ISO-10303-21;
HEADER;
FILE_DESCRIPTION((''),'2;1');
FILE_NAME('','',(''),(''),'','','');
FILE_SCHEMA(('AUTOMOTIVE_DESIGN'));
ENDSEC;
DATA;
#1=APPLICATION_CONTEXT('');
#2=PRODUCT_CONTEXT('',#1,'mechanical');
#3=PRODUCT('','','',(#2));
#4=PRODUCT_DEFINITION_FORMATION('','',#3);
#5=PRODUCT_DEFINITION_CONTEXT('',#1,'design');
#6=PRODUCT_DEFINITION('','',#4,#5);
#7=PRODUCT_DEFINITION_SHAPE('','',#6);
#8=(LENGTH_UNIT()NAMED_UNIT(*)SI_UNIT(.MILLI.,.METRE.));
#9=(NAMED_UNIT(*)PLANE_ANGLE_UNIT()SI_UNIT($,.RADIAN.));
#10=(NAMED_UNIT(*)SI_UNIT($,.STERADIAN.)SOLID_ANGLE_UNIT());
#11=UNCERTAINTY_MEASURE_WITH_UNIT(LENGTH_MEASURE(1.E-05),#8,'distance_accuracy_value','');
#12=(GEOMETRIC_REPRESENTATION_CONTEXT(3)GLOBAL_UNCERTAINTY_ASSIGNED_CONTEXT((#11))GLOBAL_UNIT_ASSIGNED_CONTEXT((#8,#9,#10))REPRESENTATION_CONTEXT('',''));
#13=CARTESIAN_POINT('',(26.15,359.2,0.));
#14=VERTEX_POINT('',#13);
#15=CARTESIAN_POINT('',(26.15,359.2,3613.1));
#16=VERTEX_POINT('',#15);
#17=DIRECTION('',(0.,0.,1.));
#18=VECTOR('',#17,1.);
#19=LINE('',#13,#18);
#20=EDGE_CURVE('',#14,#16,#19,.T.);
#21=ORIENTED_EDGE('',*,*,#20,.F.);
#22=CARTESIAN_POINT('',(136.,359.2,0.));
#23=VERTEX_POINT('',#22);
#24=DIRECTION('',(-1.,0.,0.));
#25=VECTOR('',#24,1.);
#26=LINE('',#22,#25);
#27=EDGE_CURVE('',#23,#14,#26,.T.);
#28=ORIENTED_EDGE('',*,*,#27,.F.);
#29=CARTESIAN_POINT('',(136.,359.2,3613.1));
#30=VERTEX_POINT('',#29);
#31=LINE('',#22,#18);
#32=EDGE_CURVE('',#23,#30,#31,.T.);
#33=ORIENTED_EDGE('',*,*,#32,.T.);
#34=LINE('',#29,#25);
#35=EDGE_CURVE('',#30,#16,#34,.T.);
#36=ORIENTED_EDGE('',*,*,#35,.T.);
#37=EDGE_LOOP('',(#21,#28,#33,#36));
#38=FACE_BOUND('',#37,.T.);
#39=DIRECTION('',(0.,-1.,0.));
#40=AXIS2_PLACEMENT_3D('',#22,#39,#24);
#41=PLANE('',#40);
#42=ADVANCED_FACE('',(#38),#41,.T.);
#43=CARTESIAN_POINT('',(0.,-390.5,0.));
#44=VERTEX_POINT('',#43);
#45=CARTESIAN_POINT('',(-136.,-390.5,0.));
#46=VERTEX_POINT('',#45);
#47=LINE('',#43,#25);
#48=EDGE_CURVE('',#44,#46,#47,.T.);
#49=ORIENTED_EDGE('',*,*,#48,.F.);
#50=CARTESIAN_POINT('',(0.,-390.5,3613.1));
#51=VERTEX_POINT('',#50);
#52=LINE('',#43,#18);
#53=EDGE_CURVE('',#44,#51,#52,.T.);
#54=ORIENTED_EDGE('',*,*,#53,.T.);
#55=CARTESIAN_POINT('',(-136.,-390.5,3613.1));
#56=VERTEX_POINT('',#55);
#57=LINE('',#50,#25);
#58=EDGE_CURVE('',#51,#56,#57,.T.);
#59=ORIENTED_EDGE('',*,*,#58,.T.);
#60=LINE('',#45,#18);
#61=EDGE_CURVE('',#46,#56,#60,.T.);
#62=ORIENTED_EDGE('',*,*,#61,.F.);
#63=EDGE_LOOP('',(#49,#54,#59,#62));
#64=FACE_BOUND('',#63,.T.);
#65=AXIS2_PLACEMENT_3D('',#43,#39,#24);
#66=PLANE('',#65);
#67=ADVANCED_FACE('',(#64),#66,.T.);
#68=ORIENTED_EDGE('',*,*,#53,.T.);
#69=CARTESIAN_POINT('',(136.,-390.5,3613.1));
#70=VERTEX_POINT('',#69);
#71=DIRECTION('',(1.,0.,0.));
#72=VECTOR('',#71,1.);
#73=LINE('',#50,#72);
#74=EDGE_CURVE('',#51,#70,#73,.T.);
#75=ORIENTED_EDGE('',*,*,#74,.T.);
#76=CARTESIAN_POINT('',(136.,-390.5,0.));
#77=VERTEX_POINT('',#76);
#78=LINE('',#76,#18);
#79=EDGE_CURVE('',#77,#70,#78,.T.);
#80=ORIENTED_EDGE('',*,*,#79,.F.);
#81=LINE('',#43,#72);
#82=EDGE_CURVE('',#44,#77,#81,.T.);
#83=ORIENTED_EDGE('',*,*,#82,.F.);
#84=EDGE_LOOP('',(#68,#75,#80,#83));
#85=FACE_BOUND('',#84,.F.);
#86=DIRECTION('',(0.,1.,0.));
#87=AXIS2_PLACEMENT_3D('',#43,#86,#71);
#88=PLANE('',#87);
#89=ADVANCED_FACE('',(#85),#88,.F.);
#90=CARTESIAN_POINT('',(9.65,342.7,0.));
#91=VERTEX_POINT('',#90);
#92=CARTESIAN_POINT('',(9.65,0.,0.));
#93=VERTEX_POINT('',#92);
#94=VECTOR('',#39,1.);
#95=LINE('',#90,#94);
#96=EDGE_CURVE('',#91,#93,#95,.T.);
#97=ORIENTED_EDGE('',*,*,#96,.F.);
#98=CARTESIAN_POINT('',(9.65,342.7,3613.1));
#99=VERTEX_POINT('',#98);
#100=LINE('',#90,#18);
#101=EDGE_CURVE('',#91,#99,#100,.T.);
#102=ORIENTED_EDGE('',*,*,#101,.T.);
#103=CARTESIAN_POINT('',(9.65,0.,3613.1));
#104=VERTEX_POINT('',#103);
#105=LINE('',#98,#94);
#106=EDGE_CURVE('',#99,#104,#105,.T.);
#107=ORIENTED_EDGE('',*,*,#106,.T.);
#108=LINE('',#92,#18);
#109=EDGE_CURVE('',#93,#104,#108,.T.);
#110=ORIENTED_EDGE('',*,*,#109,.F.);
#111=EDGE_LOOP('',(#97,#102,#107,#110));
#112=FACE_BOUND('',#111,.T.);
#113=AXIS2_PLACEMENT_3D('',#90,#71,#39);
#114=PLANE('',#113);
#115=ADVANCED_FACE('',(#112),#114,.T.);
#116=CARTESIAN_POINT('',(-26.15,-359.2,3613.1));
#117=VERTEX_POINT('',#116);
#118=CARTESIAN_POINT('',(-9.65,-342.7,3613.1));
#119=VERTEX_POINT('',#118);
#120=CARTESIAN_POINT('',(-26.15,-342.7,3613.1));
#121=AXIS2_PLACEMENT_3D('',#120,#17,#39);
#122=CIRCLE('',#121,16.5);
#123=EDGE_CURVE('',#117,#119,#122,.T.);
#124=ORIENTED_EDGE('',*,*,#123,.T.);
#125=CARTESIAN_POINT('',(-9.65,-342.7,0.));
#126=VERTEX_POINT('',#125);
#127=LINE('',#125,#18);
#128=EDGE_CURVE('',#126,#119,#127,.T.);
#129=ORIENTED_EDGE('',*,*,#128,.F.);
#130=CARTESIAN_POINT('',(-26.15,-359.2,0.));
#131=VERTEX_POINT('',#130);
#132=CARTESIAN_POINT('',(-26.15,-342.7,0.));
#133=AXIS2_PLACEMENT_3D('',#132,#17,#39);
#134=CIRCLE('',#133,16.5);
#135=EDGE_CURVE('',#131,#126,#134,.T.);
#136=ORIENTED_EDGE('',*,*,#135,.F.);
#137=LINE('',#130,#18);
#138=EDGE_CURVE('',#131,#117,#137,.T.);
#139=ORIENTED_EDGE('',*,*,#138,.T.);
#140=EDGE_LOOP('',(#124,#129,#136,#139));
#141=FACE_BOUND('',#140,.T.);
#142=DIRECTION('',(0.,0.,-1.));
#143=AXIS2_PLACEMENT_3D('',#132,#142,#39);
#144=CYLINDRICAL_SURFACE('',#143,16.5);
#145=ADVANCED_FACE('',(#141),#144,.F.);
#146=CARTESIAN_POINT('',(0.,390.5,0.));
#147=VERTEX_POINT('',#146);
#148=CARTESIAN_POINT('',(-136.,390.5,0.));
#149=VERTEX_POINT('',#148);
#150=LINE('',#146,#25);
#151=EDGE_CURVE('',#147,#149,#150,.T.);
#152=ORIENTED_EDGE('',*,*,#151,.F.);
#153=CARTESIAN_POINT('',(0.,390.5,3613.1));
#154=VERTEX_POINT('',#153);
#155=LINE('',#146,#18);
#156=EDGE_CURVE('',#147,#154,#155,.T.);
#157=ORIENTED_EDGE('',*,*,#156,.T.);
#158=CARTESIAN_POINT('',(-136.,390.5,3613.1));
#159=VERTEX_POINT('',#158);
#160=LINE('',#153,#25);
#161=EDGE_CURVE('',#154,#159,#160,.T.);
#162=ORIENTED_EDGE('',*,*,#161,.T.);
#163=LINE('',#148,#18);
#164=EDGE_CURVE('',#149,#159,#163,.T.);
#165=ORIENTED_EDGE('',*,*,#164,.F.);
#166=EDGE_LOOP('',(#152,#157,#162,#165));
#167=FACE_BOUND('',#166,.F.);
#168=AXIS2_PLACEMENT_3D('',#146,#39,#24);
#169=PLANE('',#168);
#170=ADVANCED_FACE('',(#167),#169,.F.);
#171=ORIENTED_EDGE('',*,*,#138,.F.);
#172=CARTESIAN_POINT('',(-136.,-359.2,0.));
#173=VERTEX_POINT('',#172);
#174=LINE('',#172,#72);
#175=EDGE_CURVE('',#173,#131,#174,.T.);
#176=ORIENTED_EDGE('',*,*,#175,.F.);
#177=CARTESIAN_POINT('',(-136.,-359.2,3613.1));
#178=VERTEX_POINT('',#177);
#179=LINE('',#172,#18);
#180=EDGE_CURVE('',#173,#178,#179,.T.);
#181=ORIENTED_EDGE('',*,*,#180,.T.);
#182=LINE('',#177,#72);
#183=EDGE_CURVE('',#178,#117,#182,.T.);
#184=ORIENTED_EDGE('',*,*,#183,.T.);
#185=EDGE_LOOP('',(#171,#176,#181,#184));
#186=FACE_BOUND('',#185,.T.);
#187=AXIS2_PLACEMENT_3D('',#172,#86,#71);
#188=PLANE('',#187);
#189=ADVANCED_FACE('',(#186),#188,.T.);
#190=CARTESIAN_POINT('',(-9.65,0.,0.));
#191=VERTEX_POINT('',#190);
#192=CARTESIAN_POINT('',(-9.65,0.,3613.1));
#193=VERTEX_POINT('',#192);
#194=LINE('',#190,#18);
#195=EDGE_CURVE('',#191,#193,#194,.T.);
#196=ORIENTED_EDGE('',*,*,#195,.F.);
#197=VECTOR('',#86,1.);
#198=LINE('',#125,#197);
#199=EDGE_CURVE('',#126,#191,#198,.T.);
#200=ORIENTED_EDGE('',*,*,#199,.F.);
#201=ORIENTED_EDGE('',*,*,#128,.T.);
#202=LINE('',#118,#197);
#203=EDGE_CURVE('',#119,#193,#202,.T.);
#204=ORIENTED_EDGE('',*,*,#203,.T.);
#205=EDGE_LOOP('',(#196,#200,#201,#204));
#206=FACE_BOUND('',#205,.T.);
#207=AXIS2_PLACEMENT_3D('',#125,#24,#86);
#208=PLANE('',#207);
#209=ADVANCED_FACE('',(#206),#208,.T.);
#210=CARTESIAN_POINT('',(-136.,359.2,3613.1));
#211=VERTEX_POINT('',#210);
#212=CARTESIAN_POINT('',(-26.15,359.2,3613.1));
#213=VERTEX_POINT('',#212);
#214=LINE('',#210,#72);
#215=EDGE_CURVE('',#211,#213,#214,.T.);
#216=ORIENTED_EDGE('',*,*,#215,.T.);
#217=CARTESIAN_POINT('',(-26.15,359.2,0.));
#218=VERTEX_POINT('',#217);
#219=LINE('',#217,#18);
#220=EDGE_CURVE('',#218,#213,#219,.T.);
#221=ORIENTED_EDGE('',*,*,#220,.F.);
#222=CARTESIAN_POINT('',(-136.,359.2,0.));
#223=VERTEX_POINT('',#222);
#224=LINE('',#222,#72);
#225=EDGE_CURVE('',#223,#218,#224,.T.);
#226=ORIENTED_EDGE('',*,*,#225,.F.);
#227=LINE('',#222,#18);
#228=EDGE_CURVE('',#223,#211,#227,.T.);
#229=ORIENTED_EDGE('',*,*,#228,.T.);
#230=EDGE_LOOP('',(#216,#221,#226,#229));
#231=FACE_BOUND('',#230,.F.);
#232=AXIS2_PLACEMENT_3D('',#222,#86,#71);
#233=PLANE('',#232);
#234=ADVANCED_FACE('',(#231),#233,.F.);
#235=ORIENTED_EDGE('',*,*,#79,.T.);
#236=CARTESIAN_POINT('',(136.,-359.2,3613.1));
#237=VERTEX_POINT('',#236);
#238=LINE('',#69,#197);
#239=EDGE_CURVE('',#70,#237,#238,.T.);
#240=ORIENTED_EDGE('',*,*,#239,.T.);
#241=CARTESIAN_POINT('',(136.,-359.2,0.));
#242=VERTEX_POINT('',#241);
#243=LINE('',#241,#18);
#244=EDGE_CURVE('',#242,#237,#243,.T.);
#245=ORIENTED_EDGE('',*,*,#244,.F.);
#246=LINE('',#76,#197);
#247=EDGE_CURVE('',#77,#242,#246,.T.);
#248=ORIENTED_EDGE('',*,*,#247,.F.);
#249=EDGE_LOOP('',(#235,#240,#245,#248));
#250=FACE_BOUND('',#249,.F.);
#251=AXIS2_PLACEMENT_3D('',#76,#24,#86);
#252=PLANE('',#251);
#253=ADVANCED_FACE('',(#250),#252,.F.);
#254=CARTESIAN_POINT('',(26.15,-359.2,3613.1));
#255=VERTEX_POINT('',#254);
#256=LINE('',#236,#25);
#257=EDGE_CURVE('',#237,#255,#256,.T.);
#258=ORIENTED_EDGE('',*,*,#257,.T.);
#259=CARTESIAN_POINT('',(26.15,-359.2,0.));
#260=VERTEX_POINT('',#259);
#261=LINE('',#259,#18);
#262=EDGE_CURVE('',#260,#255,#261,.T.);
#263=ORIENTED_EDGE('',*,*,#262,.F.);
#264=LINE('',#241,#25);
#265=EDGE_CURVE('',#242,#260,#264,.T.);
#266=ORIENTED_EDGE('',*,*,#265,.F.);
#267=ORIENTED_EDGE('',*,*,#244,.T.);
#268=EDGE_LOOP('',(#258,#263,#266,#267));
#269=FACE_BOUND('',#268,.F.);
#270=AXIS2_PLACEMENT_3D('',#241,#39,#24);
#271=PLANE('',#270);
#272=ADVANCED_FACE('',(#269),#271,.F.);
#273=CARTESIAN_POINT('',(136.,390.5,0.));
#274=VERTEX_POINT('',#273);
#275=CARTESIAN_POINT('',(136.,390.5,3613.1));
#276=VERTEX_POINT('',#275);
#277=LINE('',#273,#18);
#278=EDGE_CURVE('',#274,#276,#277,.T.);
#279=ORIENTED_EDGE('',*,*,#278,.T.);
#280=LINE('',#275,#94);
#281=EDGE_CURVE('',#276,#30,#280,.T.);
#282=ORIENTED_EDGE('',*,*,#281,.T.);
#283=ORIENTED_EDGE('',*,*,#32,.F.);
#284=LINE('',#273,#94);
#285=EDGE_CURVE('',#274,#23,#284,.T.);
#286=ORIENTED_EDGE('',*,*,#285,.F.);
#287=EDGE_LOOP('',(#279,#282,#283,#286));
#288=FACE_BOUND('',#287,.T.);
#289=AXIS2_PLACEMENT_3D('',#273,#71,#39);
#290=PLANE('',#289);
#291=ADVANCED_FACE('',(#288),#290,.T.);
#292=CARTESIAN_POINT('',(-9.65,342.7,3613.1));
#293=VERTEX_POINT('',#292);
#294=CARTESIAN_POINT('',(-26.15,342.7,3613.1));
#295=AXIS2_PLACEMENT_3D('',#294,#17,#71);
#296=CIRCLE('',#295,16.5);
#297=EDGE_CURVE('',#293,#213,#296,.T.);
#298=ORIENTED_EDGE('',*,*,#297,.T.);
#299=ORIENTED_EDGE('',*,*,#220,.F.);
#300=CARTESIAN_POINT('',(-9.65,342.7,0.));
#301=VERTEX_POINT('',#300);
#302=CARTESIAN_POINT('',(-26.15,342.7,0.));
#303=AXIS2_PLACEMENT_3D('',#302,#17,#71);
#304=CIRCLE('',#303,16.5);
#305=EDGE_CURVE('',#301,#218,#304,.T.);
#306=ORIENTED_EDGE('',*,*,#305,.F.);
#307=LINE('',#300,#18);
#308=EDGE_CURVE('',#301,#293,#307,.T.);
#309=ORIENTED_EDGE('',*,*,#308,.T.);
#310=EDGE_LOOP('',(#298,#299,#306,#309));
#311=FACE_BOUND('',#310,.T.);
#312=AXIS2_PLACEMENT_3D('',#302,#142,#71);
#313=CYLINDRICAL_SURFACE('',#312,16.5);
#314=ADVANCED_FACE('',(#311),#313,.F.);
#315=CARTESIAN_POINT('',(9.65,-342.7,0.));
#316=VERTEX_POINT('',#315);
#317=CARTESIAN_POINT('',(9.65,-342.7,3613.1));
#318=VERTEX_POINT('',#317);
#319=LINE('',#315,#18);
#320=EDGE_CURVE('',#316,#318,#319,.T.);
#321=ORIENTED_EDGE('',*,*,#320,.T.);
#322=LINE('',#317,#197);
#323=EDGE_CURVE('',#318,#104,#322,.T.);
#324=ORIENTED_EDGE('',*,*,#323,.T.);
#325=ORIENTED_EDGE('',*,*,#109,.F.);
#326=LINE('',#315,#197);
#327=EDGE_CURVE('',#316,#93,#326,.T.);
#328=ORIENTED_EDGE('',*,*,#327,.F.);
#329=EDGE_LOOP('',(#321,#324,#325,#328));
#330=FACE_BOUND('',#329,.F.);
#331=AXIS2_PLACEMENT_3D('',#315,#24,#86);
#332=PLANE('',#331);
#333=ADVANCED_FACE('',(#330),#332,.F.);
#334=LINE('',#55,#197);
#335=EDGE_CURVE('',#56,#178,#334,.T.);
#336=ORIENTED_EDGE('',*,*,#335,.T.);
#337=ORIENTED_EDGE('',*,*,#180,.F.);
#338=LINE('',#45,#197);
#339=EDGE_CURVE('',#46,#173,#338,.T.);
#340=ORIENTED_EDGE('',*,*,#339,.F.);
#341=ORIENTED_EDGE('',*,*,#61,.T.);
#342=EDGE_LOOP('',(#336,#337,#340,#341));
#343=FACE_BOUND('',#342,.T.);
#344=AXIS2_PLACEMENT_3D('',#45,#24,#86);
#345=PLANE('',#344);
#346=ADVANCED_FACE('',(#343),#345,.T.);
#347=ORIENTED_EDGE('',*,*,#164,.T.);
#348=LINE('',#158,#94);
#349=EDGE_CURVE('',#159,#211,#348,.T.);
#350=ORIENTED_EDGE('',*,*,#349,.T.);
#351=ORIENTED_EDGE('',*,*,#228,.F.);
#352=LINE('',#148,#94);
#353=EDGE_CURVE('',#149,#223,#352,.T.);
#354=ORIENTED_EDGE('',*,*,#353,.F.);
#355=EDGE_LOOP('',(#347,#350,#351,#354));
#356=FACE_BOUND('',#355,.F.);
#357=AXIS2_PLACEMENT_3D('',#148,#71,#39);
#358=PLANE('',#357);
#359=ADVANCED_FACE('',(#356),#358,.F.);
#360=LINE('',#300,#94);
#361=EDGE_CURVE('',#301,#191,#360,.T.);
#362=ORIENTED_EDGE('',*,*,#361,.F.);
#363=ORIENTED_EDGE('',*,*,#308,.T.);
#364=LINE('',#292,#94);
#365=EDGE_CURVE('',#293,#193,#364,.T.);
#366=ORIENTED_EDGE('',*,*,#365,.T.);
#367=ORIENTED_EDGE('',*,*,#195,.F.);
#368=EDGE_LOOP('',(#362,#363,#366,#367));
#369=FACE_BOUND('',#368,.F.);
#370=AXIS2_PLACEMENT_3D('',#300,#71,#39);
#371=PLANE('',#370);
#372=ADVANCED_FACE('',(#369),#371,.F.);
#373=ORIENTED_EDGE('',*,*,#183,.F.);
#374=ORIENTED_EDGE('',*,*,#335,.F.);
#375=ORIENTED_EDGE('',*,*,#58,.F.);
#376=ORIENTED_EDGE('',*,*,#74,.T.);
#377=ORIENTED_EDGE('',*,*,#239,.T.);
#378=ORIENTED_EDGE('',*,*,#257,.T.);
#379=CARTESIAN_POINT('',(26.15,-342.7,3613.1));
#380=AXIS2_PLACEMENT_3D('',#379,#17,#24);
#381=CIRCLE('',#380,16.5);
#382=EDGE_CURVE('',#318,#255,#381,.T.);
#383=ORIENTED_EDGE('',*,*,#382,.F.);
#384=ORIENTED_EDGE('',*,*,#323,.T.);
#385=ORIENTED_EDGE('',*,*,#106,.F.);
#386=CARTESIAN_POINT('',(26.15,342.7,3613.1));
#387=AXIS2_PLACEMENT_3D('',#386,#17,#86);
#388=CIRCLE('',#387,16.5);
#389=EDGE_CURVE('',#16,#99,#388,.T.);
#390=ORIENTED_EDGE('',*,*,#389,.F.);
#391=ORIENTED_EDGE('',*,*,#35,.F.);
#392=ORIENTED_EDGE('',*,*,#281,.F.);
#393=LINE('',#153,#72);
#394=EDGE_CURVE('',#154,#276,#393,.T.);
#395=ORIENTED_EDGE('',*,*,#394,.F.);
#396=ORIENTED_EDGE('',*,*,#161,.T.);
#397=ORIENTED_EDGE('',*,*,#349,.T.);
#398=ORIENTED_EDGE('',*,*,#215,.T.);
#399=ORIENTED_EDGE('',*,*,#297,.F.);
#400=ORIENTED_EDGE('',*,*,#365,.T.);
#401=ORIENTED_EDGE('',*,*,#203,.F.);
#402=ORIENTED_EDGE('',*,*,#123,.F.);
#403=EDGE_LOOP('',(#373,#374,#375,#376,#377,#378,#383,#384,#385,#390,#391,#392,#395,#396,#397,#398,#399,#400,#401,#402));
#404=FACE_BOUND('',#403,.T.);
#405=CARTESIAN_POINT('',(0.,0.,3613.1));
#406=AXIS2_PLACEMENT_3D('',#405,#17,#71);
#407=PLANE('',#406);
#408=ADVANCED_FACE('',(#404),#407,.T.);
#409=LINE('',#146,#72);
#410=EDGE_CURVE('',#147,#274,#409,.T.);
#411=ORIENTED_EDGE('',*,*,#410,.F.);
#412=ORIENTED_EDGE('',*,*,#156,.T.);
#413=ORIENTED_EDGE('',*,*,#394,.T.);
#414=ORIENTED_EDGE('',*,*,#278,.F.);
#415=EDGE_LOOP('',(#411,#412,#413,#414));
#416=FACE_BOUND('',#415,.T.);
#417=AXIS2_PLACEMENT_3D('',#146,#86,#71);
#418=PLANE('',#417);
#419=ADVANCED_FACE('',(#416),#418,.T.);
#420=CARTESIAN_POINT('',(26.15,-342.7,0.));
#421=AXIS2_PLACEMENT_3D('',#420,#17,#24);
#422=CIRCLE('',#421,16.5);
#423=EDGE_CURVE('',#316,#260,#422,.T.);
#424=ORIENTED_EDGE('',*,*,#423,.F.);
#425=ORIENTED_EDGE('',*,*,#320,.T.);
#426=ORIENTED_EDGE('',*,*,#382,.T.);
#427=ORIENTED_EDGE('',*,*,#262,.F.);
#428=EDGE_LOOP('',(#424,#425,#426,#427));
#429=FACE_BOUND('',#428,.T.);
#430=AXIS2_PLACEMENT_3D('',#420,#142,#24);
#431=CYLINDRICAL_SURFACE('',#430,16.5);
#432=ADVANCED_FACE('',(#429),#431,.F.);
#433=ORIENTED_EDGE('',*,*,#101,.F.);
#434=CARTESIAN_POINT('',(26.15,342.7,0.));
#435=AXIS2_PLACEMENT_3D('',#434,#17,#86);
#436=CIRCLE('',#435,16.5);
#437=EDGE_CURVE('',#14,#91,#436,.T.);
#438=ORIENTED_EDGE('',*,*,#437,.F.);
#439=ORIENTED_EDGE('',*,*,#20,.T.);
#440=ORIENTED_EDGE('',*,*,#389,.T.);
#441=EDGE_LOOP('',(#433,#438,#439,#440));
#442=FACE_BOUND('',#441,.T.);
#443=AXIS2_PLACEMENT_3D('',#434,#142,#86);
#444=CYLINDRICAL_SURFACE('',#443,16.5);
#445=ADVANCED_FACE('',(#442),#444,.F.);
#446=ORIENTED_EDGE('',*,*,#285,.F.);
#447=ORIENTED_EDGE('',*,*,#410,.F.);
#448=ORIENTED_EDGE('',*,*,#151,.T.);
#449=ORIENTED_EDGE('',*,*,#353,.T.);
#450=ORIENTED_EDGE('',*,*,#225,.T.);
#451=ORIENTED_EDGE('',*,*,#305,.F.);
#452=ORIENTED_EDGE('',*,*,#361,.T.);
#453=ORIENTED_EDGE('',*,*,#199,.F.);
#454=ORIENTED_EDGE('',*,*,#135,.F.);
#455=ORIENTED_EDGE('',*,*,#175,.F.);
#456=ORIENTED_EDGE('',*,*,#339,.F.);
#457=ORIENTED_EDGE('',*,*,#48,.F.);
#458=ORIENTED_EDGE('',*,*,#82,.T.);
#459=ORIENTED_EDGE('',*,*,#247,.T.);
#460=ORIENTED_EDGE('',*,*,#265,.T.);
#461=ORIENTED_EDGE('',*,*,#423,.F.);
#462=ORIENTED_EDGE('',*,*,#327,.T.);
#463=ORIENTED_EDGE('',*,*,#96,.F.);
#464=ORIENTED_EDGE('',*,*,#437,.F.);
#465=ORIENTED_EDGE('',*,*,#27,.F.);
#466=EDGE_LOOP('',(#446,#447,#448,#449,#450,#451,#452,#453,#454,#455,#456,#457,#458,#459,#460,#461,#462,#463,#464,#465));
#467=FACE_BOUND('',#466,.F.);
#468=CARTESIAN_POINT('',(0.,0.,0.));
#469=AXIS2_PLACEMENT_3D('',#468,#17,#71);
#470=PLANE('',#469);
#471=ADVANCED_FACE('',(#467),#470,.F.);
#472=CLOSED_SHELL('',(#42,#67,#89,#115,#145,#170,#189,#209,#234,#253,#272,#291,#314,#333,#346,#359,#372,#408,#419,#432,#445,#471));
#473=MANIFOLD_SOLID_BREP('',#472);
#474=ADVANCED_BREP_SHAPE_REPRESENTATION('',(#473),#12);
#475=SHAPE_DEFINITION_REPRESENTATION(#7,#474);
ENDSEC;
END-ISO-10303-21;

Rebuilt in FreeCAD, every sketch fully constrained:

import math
import FreeCAD as App
import Part
import Sketcher

V = App.Vector

doc = App.newDocument("Part")
body = doc.addObject("PartDesign::Body", "Body")

# Sketch on XY plane
sketch1 = body.newObject("Sketcher::SketchObject", "Sketch")
sketch1.AttachmentSupport = (doc.getObject("XY_Plane"), [""])
sketch1.MapMode = "FlatFace"
sketch1.addGeometry([
    Part.LineSegment(V(-136, -359, 0), V(-136, -390, 0)),  # 0
    Part.LineSegment(V(-136, -390, 0), V(136, -390, 0)),  # 1
    Part.LineSegment(V(136, -390, 0), V(136, -359, 0)),  # 2
    Part.LineSegment(V(136, -359, 0), V(26, -359, 0)),  # 3
    Part.ArcOfCircle(Part.Circle(V(26, -343, 0), V(0, 0, 1), 16), math.radians(180), math.radians(270)),  # 4
    Part.LineSegment(V(10, -343, 0), V(10, 343, 0)),  # 5
    Part.ArcOfCircle(Part.Circle(V(26, 343, 0), V(0, 0, 1), 16), math.radians(90), math.radians(180)),  # 6
    Part.LineSegment(V(26, 359, 0), V(136, 359, 0)),  # 7
    Part.LineSegment(V(136, 359, 0), V(136, 390, 0)),  # 8
    Part.LineSegment(V(136, 390, 0), V(-136, 390, 0)),  # 9
    Part.LineSegment(V(-136, 390, 0), V(-136, 359, 0)),  # 10
    Part.LineSegment(V(-136, 359, 0), V(-26, 359, 0)),  # 11
    Part.ArcOfCircle(Part.Circle(V(-26, 343, 0), V(0, 0, 1), 16), math.radians(0), math.radians(90)),  # 12
    Part.LineSegment(V(-10, 343, 0), V(-10, -343, 0)),  # 13
    Part.ArcOfCircle(Part.Circle(V(-26, -343, 0), V(0, 0, 1), 16), math.radians(-90), math.radians(0)),  # 14
    Part.LineSegment(V(-26, -359, 0), V(-136, -359, 0)),  # 15
], False)
sketch1.addConstraint([
    Sketcher.Constraint("Coincident", 0, 2, 1, 1),
    Sketcher.Constraint("Coincident", 1, 2, 2, 1),
    Sketcher.Constraint("Coincident", 2, 2, 3, 1),
    Sketcher.Constraint("Tangent", 3, 2, 4, 2),
    Sketcher.Constraint("Tangent", 4, 1, 5, 1),
    Sketcher.Constraint("Tangent", 5, 2, 6, 2),
    Sketcher.Constraint("Tangent", 6, 1, 7, 1),
    Sketcher.Constraint("Coincident", 7, 2, 8, 1),
    Sketcher.Constraint("Coincident", 8, 2, 9, 1),
    Sketcher.Constraint("Coincident", 9, 2, 10, 1),
    Sketcher.Constraint("Coincident", 10, 2, 11, 1),
    Sketcher.Constraint("Tangent", 11, 2, 12, 2),
    Sketcher.Constraint("Tangent", 12, 1, 13, 1),
    Sketcher.Constraint("Tangent", 13, 2, 14, 2),
    Sketcher.Constraint("Tangent", 14, 1, 15, 1),
    Sketcher.Constraint("Coincident", 15, 2, 0, 1),
    Sketcher.Constraint("Vertical", 0),
    Sketcher.Constraint("Horizontal", 1),
    Sketcher.Constraint("Vertical", 2),
    Sketcher.Constraint("Horizontal", 3),
    Sketcher.Constraint("Vertical", 5),
    Sketcher.Constraint("Horizontal", 7),
    Sketcher.Constraint("Vertical", 8),
    Sketcher.Constraint("Horizontal", 9),
    Sketcher.Constraint("Vertical", 10),
    Sketcher.Constraint("Horizontal", 11),
    Sketcher.Constraint("Vertical", 13),
    Sketcher.Constraint("Horizontal", 15),
    Sketcher.Constraint("Equal", 4, 6),
    Sketcher.Constraint("Equal", 6, 12),
    Sketcher.Constraint("Equal", 12, 14),
    Sketcher.Constraint("Symmetric", 4, 3, 12, 3, -1, 1),
    Sketcher.Constraint("Symmetric", 0, 2, 8, 2, -1, 1),
    Sketcher.Constraint("Symmetric", 7, 2, 10, 2, -2),
    Sketcher.Constraint("Symmetric", 2, 2, 15, 2, -2),
    Sketcher.Constraint("Radius", 4, 16.5),
    Sketcher.Constraint("DistanceY", 0, 2, 0, 1, 31.3),
    Sketcher.Constraint("DistanceX", 0, 2, -1, 1, 136.0),
    Sketcher.Constraint("DistanceY", 0, 2, -1, 1, 390.5),
    Sketcher.Constraint("DistanceX", -1, 1, 4, 1, 9.65),
])
pad1 = body.newObject("PartDesign::Pad", "Pad")
pad1.Profile = sketch1
pad1.Length = 3613.1

doc.recompute()
